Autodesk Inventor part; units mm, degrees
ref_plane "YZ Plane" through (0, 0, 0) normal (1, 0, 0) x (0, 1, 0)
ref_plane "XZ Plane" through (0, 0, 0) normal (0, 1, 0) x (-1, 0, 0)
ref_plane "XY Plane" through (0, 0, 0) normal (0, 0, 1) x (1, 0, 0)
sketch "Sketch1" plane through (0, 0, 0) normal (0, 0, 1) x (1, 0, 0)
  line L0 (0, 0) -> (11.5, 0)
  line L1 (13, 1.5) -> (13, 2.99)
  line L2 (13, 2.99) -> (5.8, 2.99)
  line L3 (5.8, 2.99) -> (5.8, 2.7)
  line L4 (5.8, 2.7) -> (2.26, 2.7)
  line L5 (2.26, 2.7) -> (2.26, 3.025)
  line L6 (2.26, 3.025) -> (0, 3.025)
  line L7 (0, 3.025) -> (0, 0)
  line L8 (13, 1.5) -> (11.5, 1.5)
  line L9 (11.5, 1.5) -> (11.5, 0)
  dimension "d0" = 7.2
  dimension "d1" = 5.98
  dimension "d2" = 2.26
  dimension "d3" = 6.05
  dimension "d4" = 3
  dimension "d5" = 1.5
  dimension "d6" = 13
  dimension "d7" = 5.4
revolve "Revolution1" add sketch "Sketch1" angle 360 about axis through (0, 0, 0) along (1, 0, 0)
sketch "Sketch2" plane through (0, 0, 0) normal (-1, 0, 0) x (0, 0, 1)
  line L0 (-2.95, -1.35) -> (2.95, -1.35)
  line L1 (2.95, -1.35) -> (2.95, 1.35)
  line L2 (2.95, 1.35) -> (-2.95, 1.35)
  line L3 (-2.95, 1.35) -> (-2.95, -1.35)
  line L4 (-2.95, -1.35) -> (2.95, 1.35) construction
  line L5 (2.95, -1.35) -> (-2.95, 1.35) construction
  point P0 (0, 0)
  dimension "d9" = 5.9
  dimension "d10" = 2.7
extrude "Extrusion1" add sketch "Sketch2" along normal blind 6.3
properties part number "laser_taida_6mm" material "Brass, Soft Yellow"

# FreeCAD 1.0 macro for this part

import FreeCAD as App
import Part
import Sketcher

V = App.Vector

doc = App.newDocument("Part")
body = doc.addObject("PartDesign::Body", "Body")

sketch1 = body.newObject("Sketcher::SketchObject", "Sketch")
sketch1.AttachmentSupport = (doc.getObject("XY_Plane"), [""])
sketch1.MapMode = "FlatFace"
sketch1.addGeometry([
    Part.LineSegment(V(0, 3.02, 0), V(0, 0, 0)),
    Part.LineSegment(V(0, 0, 0), V(11.5, 0, 0)),
    Part.LineSegment(V(11.5, 0, 0), V(11.5, 1.5, 0)),
    Part.LineSegment(V(11.5, 1.5, 0), V(13, 1.5, 0)),
    Part.LineSegment(V(13, 1.5, 0), V(13, 2.99, 0)),
    Part.LineSegment(V(13, 2.99, 0), V(5.8, 2.99, 0)),
    Part.LineSegment(V(5.8, 2.99, 0), V(5.8, 2.7, 0)),
    Part.LineSegment(V(5.8, 2.7, 0), V(2.26, 2.7, 0)),
    Part.LineSegment(V(2.26, 2.7, 0), V(2.26, 3.02, 0)),
    Part.LineSegment(V(2.26, 3.02, 0), V(0, 3.02, 0)),
], False)
sketch1.addConstraint([
    Sketcher.Constraint("Coincident", 0, 2, 1, 1),
    Sketcher.Constraint("Coincident", 1, 2, 2, 1),
    Sketcher.Constraint("Coincident", 2, 2, 3, 1),
    Sketcher.Constraint("Coincident", 3, 2, 4, 1),
    Sketcher.Constraint("Coincident", 4, 2, 5, 1),
    Sketcher.Constraint("Coincident", 5, 2, 6, 1),
    Sketcher.Constraint("Coincident", 6, 2, 7, 1),
    Sketcher.Constraint("Coincident", 7, 2, 8, 1),
    Sketcher.Constraint("Coincident", 8, 2, 9, 1),
    Sketcher.Constraint("Coincident", 9, 2, 0, 1),
    Sketcher.Constraint("Vertical", 0),
    Sketcher.Constraint("Horizontal", 1),
    Sketcher.Constraint("Vertical", 2),
    Sketcher.Constraint("Horizontal", 3),
    Sketcher.Constraint("Vertical", 4),
    Sketcher.Constraint("Horizontal", 5),
    Sketcher.Constraint("Vertical", 6),
    Sketcher.Constraint("Horizontal", 7),
    Sketcher.Constraint("Vertical", 8),
    Sketcher.Constraint("Horizontal", 9),
    Sketcher.Constraint("Coincident", 0, 2, -1, 1),
    Sketcher.Constraint("Equal", 3, 2),
    Sketcher.Constraint("DistanceX", 3, 1, 3, 2, 1.5),
    Sketcher.Constraint("DistanceX", 5, 2, 5, 1, 7.2),
    Sketcher.Constraint("DistanceX", -1, 1, 3, 2, 13.0),
    Sketcher.Constraint("DistanceX", 9, 2, 9, 1, 2.26),
    Sketcher.Constraint("DistanceY", 4, 1, 4, 2, 1.49),
    Sketcher.Constraint("DistanceY", 6, 2, 6, 1, 0.29),
    Sketcher.Constraint("DistanceY", 0, 2, 0, 1, 3.025),
])
revolution = body.newObject("PartDesign::Revolution", "Revolution")
revolution.Profile = sketch1
revolution.ReferenceAxis = (sketch1, ["H_Axis"])
revolution.Angle = 360

sketch2 = body.newObject("Sketcher::SketchObject", "Sketch001")
sketch2.AttachmentSupport = (doc.getObject("YZ_Plane"), [""])
sketch2.MapMode = "FlatFace"
sketch2.addGeometry([
    Part.LineSegment(V(1.4, -3, 0), V(-1.4, -3, 0)),
    Part.LineSegment(V(-1.4, -3, 0), V(-1.4, 3, 0)),
    Part.LineSegment(V(-1.4, 3, 0), V(1.4, 3, 0)),
    Part.LineSegment(V(1.4, 3, 0), V(1.4, -3, 0)),
], False)
sketch2.addConstraint([
    Sketcher.Constraint("Coincident", 0, 2, 1, 1),
    Sketcher.Constraint("Coincident", 1, 2, 2, 1),
    Sketcher.Constraint("Coincident", 2, 2, 3, 1),
    Sketcher.Constraint("Coincident", 3, 2, 0, 1),
    Sketcher.Constraint("Horizontal", 0),
    Sketcher.Constraint("Vertical", 1),
    Sketcher.Constraint("Horizontal", 2),
    Sketcher.Constraint("Vertical", 3),
    Sketcher.Constraint("Symmetric", 0, 2, 2, 2, -1, 1),
    Sketcher.Constraint("DistanceX", 0, 2, 0, 1, 2.7),
    Sketcher.Constraint("DistanceY", 1, 1, 1, 2, 5.9),
])
pad1 = body.newObject("PartDesign::Pad", "Pad")
pad1.Profile = sketch2
pad1.Length = 6.3
pad1.Reversed = True

doc.recompute()
